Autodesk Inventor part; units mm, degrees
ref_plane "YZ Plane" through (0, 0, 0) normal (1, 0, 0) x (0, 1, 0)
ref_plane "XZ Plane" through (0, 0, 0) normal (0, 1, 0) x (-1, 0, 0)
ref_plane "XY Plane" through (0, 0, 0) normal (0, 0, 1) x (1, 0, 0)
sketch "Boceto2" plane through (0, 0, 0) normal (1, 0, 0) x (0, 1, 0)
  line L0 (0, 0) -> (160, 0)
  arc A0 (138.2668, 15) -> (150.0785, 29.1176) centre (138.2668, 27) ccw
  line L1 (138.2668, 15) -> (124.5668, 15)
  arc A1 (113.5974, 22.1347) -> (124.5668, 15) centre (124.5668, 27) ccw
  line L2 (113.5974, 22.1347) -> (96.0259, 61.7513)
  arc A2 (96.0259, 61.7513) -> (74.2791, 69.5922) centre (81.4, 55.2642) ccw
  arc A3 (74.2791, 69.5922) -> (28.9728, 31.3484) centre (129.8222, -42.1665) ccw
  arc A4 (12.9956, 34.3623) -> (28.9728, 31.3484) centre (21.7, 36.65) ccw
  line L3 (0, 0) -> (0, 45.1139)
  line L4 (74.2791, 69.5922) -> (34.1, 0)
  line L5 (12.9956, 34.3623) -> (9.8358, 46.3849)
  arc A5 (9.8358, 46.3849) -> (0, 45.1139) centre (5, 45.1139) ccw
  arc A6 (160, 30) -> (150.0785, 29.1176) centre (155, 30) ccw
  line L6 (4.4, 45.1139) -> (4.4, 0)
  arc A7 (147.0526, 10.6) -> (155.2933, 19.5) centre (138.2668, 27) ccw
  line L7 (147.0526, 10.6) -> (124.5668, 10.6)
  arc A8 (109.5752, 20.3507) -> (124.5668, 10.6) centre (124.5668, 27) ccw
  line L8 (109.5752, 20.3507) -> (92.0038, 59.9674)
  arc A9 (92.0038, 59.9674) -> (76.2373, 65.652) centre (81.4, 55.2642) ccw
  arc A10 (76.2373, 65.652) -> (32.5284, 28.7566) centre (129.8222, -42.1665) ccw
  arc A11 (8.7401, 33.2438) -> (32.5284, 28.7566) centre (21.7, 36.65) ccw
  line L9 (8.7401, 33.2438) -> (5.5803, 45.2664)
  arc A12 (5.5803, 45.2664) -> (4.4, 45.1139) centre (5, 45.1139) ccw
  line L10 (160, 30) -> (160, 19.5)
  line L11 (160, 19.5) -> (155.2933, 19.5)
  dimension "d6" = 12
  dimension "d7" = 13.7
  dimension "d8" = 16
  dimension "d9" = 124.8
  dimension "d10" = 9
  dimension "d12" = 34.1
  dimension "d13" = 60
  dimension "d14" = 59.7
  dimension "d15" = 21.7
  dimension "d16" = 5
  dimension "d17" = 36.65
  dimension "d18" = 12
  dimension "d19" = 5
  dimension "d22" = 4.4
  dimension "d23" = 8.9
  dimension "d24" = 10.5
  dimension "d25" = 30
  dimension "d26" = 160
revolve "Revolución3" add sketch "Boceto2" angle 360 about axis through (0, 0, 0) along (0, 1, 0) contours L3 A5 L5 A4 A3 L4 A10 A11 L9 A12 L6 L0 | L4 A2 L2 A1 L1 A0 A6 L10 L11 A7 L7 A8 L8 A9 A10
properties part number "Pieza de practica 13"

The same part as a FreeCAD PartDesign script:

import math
import FreeCAD as App
import Part
import Sketcher

V = App.Vector
Q = App.Units.Quantity

doc = App.newDocument("Part")
body = doc.addObject("PartDesign::Body", "Body")

# Sketch on YZ plane
sketch1 = doc.addObject("Sketcher::SketchObject", "Sketch")
body.addObject(sketch1)
sketch1.AttachmentSupport = (doc.YZ_Plane, [""])
sketch1.MapMode = "FlatFace"
sketch1.addGeometry([
    Part.LineSegment(V(0, 45.1, 0), V(0, 0, 0)),  # 0
    Part.LineSegment(V(0, 0, 0), V(4.4, 0, 0)),  # 1
    Part.LineSegment(V(4.4, 0, 0), V(4.4, 45.1, 0)),  # 2
    Part.ArcOfCircle(Part.Circle(V(5, 45.1, 0), V(0, 0, 1), 0.6), math.radians(15), math.radians(180)),  # 3
    Part.LineSegment(V(5.6, 45.3, 0), V(8.7, 33.2, 0)),  # 4
    Part.ArcOfCircle(Part.Circle(V(21.7, 36.6, 0), V(0, 0, 1), 13.4), math.radians(-165), math.radians(-36)),  # 5
    Part.ArcOfCircle(Part.Circle(V(129.8, -42.2, 0), V(0, 0, 1), 120.4), math.radians(116), math.radians(144)),  # 6
    Part.ArcOfCircle(Part.Circle(V(81.4, 55.3, 0), V(0, 0, 1), 11.6), math.radians(24), math.radians(116)),  # 7
    Part.LineSegment(V(92, 60, 0), V(109.6, 20.4, 0)),  # 8
    Part.ArcOfCircle(Part.Circle(V(124.6, 27, 0), V(0, 0, 1), 16.4), math.radians(-156), math.radians(-90)),  # 9
    Part.LineSegment(V(124.6, 10.6, 0), V(147.1, 10.6, 0)),  # 10
    Part.ArcOfCircle(Part.Circle(V(138.3, 27, 0), V(0, 0, 1), 18.6), math.radians(-62), math.radians(-24)),  # 11
    Part.LineSegment(V(155.3, 19.5, 0), V(160, 19.5, 0)),  # 12
    Part.LineSegment(V(160, 19.5, 0), V(160, 30, 0)),  # 13
    Part.ArcOfCircle(Part.Circle(V(155, 30, 0), V(0, 0, 1), 5), math.radians(0), math.radians(190)),  # 14
    Part.ArcOfCircle(Part.Circle(V(138.3, 27, 0), V(0, 0, 1), 12), math.radians(-90), math.radians(10)),  # 15
    Part.LineSegment(V(138.3, 15, 0), V(124.6, 15, 0)),  # 16
    Part.ArcOfCircle(Part.Circle(V(124.6, 27, 0), V(0, 0, 1), 12), math.radians(-156), math.radians(-90)),  # 17
    Part.LineSegment(V(113.6, 22.1, 0), V(96, 61.8, 0)),  # 18
    Part.ArcOfCircle(Part.Circle(V(81.4, 55.3, 0), V(0, 0, 1), 16), math.radians(24), math.radians(116)),  # 19
    Part.ArcOfCircle(Part.Circle(V(129.8, -42.2, 0), V(0, 0, 1), 124.8), math.radians(116), math.radians(144)),  # 20
    Part.ArcOfCircle(Part.Circle(V(21.7, 36.6, 0), V(0, 0, 1), 9), math.radians(-165), math.radians(-36)),  # 21
    Part.LineSegment(V(13, 34.4, 0), V(9.8, 46.4, 0)),  # 22
    Part.ArcOfCircle(Part.Circle(V(5, 45.1, 0), V(0, 0, 1), 5), math.radians(15), math.radians(180)),  # 23
], False)
sketch1.addConstraint([
    Sketcher.Constraint("Coincident", 0, 2, 1, 1),
    Sketcher.Constraint("Coincident", 1, 2, 2, 1),
    Sketcher.Constraint("Tangent", 2, 2, 3, 2),
    Sketcher.Constraint("Tangent", 3, 1, 4, 1),
    Sketcher.Constraint("Tangent", 4, 2, 5, 1),
    Sketcher.Constraint("Tangent", 5, 2, 6, 2),
    Sketcher.Constraint("Tangent", 6, 1, 7, 2),
    Sketcher.Constraint("Tangent", 7, 1, 8, 1),
    Sketcher.Constraint("Tangent", 8, 2, 9, 1),
    Sketcher.Constraint("Tangent", 9, 2, 10, 1),
    Sketcher.Constraint("Coincident", 10, 2, 11, 1),
    Sketcher.Constraint("Coincident", 11, 2, 12, 1),
    Sketcher.Constraint("Coincident", 12, 2, 13, 1),
    Sketcher.Constraint("Tangent", 13, 2, 14, 1),
    Sketcher.Constraint("Tangent", 14, 2, 15, 2),
    Sketcher.Constraint("Tangent", 15, 1, 16, 1),
    Sketcher.Constraint("Tangent", 16, 2, 17, 2),
    Sketcher.Constraint("Tangent", 17, 1, 18, 1),
    Sketcher.Constraint("Tangent", 18, 2, 19, 1),
    Sketcher.Constraint("Tangent", 19, 2, 20, 1),
    Sketcher.Constraint("Tangent", 20, 2, 21, 2),
    Sketcher.Constraint("Tangent", 21, 1, 22, 1),
    Sketcher.Constraint("Tangent", 22, 2, 23, 1),
    Sketcher.Constraint("Tangent", 23, 2, 0, 1),
    Sketcher.Constraint("Vertical", 0),
    Sketcher.Constraint("Horizontal", 1),
    Sketcher.Constraint("Vertical", 2),
    Sketcher.Constraint("Horizontal", 10),
    Sketcher.Constraint("Horizontal", 12),
    Sketcher.Constraint("Vertical", 13),
    Sketcher.Constraint("Horizontal", 16),
    Sketcher.Constraint("Coincident", 0, 2, -1, 1),
    Sketcher.Constraint("Coincident", 15, 3, 11, 3),
    Sketcher.Constraint("Coincident", 17, 3, 9, 3),
    Sketcher.Constraint("Coincident", 19, 3, 7, 3),
    Sketcher.Constraint("Coincident", 20, 3, 6, 3),
    Sketcher.Constraint("Coincident", 21, 3, 5, 3),
    Sketcher.Constraint("Coincident", 23, 3, 3, 3),
    Sketcher.Constraint("Equal", 15, 17),
    Sketcher.Constraint("Equal", 14, 23),
    Sketcher.Constraint("Parallel", 8, 18),
    Sketcher.Constraint("Parallel", 4, 22),
    Sketcher.Constraint("Radius", 14, Q("5 mm")),
    Sketcher.Constraint("Radius", 15, Q("12 mm")),
    Sketcher.Constraint("Radius", 19, Q("16 mm")),
    Sketcher.Constraint("Radius", 21, Q("9 mm")),
    Sketcher.Constraint("Radius", 20, Q("124.8 mm")),
    Sketcher.Constraint("DistanceX", 1, 1, 1, 2, Q("4.4 mm")),
    Sketcher.Constraint("DistanceX", 16, 2, 16, 1, Q("13.7 mm")),
    Sketcher.Constraint("DistanceY", 13, 1, 13, 2, Q("10.5 mm")),
    Sketcher.Constraint("DistanceY", -1, 1, 14, 3, Q("30 mm")),
    Sketcher.Constraint("DistanceX", -1, 1, 12, 2, Q("160 mm")),
    Sketcher.Constraint("DistanceX", -1, 1, 5, 3, Q("21.7 mm")),
    Sketcher.Constraint("DistanceX", 5, 3, 7, 3, Q("59.7 mm")),
    Sketcher.Constraint("DistanceY", 10, 2, 11, 2, Q("8.9 mm")),
    Sketcher.Constraint("DistanceY", -1, 1, 5, 3, Q("36.65 mm")),
    Sketcher.Constraint("Radius", 11, Q("18.605 mm")),
    Sketcher.Constraint("Angle", 8, Q("-66.081 deg")),
    Sketcher.Constraint("DistanceY", 0, 2, 0, 1, Q("45.114 mm")),
])
revolution = doc.addObject("PartDesign::Revolution", "Revolution")
body.addObject(revolution)
revolution.Profile = sketch1
revolution.ReferenceAxis = (sketch1, ["H_Axis"])
revolution.Angle = 360

doc.recompute()
